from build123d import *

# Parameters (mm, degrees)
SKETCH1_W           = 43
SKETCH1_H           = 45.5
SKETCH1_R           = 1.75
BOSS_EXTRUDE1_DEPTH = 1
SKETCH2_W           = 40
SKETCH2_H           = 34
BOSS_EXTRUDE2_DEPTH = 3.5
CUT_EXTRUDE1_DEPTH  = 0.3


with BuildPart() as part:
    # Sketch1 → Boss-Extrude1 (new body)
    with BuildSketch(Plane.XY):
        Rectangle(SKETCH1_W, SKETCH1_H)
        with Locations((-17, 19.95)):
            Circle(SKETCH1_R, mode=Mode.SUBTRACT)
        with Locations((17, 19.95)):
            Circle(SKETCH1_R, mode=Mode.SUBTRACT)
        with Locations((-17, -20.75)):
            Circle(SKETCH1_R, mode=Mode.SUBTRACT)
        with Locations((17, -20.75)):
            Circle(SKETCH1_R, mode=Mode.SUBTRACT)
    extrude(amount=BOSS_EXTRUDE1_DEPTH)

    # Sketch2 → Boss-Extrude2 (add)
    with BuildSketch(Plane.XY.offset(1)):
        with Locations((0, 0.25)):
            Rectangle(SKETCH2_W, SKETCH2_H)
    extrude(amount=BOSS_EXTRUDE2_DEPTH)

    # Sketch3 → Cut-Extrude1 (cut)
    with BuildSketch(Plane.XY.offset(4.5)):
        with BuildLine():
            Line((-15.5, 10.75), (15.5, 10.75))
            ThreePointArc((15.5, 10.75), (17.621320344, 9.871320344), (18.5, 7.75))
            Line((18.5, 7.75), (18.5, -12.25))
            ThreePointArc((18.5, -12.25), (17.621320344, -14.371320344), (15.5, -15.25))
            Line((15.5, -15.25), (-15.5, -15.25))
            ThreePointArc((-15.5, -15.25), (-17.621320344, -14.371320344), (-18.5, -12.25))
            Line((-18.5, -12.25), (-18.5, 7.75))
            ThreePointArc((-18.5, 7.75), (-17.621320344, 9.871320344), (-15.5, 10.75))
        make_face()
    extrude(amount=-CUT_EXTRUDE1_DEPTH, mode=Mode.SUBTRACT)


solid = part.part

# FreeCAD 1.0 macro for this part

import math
import FreeCAD as App
import Part
import Sketcher

V = App.Vector
Q = App.Units.Quantity


def add_polygon(sketch, points):
    """Adds a closed chain of lines whose ends are joined by coincident constraints."""
    first, n = sketch.GeometryCount, len(points)
    for a, b in zip(points, points[1:] + points[:1]):
        sketch.addGeometry(Part.LineSegment(App.Vector(*a, 0), App.Vector(*b, 0)), False)
    for i in range(n):
        sketch.addConstraint(Sketcher.Constraint("Coincident", first + i, 2, first + (i + 1) % n, 1))

doc = App.newDocument("Part")
body = doc.addObject("PartDesign::Body", "Body")

# Sketch on XY plane
sketch1 = body.newObject("Sketcher::SketchObject", "Sketch")
sketch1.AttachmentSupport = (doc.getObject("XY_Plane"), [""])
sketch1.MapMode = "FlatFace"
add_polygon(sketch1, [(-21.5, 22.8), (-21.5, -22.8), (21.5, -22.8), (21.5, 22.8)])  # lines 0-3
sketch1.addGeometry(Part.Circle(V(-17, -20.8, 0), V(0, 0, 1), 1.8), False)  # 4
sketch1.addGeometry(Part.Circle(V(17, -20.8, 0), V(0, 0, 1), 1.8), False)  # 5
sketch1.addGeometry(Part.Circle(V(-17, 19.9, 0), V(0, 0, 1), 1.8), False)  # 6
sketch1.addGeometry(Part.Circle(V(17, 19.9, 0), V(0, 0, 1), 1.8), False)  # 7
sketch1.addConstraint([
    Sketcher.Constraint("Vertical", 0),
    Sketcher.Constraint("Horizontal", 1),
    Sketcher.Constraint("Vertical", 2),
    Sketcher.Constraint("Horizontal", 3),
    Sketcher.Constraint("Equal", 4, 5),
    Sketcher.Constraint("Equal", 5, 6),
    Sketcher.Constraint("Equal", 6, 7),
    Sketcher.Constraint("Symmetric", 0, 2, 2, 2, -1, 1),
    Sketcher.Constraint("Symmetric", 4, 3, 5, 3, -2),
    Sketcher.Constraint("Symmetric", 6, 3, 7, 3, -2),
    Sketcher.Constraint("Vertical", 4, 3, 6, 3),
    Sketcher.Constraint("Diameter", 4, Q("3.5 mm")),
    Sketcher.Constraint("DistanceX", 1, 1, 1, 2, Q("43 mm")),
    Sketcher.Constraint("DistanceY", 0, 2, 0, 1, Q("45.5 mm")),
    Sketcher.Constraint("DistanceX", 4, 3, -1, 1, Q("17 mm")),
    Sketcher.Constraint("DistanceY", 0, 2, 4, 3, Q("2 mm")),
    Sketcher.Constraint("DistanceY", 4, 3, 6, 3, Q("40.7 mm")),
])
pad1 = body.newObject("PartDesign::Pad", "Pad")
pad1.Profile = sketch1
pad1.Length = 1

# Sketch on XY plane
sketch2 = body.newObject("Sketcher::SketchObject", "Sketch001")
sketch2.AttachmentSupport = (doc.getObject("XY_Plane"), [""])
sketch2.MapMode = "FlatFace"
sketch2.AttachmentOffset = App.Placement(V(0, 0, 1), App.Rotation())
add_polygon(sketch2, [(-20, 17), (-20, -17), (20, -17), (20, 17)])  # lines 0-3
sketch2.addConstraint([
    Sketcher.Constraint("Vertical", 0),
    Sketcher.Constraint("Horizontal", 1),
    Sketcher.Constraint("Vertical", 2),
    Sketcher.Constraint("Horizontal", 3),
    Sketcher.Constraint("DistanceX", 1, 1, 1, 2, Q("40 mm")),
    Sketcher.Constraint("DistanceY", 0, 2, 0, 1, Q("34 mm")),
    Sketcher.Constraint("DistanceX", 0, 2, -1, 1, Q("20 mm")),
    Sketcher.Constraint("DistanceY", 0, 2, -1, 1, Q("16.75 mm")),
])
pad2 = body.newObject("PartDesign::Pad", "Pad001")
pad2.Profile = sketch2
pad2.Length = 3.5

# Sketch on XY plane
sketch3 = body.newObject("Sketcher::SketchObject", "Sketch002")
sketch3.AttachmentSupport = (doc.getObject("XY_Plane"), [""])
sketch3.MapMode = "FlatFace"
sketch3.AttachmentOffset = App.Placement(V(0, 0, 4.5), App.Rotation())
sketch3.addGeometry([
    Part.LineSegment(V(15.5, 10.8, 0), V(-15.5, 10.8, 0)),  # 0
    Part.ArcOfCircle(Part.Circle(V(-15.5, 7.8, 0), V(0, 0, 1), 3), math.radians(90), math.radians(180)),  # 1
    Part.LineSegment(V(-18.5, 7.8, 0), V(-18.5, -12.2, 0)),  # 2
    Part.ArcOfCircle(Part.Circle(V(-15.5, -12.3, 0), V(0, 0, 1), 3), math.radians(180), math.radians(270)),  # 3
    Part.LineSegment(V(-15.5, -15.2, 0), V(15.5, -15.2, 0)),  # 4
    Part.ArcOfCircle(Part.Circle(V(15.5, -12.3, 0), V(0, 0, 1), 3), math.radians(-90), math.radians(0)),  # 5
    Part.LineSegment(V(18.5, -12.2, 0), V(18.5, 7.8, 0)),  # 6
    Part.ArcOfCircle(Part.Circle(V(15.5, 7.8, 0), V(0, 0, 1), 3), math.radians(0), math.radians(90)),  # 7
], False)
sketch3.addConstraint([
    Sketcher.Constraint("Tangent", 0, 2, 1, 1),
    Sketcher.Constraint("Tangent", 1, 2, 2, 1),
    Sketcher.Constraint("Tangent", 2, 2, 3, 1),
    Sketcher.Constraint("Tangent", 3, 2, 4, 1),
    Sketcher.Constraint("Tangent", 4, 2, 5, 1),
    Sketcher.Constraint("Tangent", 5, 2, 6, 1),
    Sketcher.Constraint("Tangent", 6, 2, 7, 1),
    Sketcher.Constraint("Tangent", 7, 2, 0, 1),
    Sketcher.Constraint("Horizontal", 0),
    Sketcher.Constraint("Vertical", 2),
    Sketcher.Constraint("Horizontal", 4),
    Sketcher.Constraint("Vertical", 6),
    Sketcher.Constraint("Equal", 1, 3),
    Sketcher.Constraint("Equal", 3, 5),
    Sketcher.Constraint("Equal", 5, 7),
    Sketcher.Constraint("Radius", 1, Q("3 mm")),
    Sketcher.Constraint("DistanceX", 0, 2, 0, 1, Q("31 mm")),
    Sketcher.Constraint("DistanceY", 2, 2, 2, 1, Q("20 mm")),
    Sketcher.Constraint("DistanceX", 1, 3, -1, 1, Q("15.5 mm")),
    Sketcher.Constraint("DistanceY", -1, 1, 1, 3, Q("7.75 mm")),
])
pocket1 = body.newObject("PartDesign::Pocket", "Pocket")
pocket1.Profile = sketch3
pocket1.Length = 0.3

doc.recompute()
